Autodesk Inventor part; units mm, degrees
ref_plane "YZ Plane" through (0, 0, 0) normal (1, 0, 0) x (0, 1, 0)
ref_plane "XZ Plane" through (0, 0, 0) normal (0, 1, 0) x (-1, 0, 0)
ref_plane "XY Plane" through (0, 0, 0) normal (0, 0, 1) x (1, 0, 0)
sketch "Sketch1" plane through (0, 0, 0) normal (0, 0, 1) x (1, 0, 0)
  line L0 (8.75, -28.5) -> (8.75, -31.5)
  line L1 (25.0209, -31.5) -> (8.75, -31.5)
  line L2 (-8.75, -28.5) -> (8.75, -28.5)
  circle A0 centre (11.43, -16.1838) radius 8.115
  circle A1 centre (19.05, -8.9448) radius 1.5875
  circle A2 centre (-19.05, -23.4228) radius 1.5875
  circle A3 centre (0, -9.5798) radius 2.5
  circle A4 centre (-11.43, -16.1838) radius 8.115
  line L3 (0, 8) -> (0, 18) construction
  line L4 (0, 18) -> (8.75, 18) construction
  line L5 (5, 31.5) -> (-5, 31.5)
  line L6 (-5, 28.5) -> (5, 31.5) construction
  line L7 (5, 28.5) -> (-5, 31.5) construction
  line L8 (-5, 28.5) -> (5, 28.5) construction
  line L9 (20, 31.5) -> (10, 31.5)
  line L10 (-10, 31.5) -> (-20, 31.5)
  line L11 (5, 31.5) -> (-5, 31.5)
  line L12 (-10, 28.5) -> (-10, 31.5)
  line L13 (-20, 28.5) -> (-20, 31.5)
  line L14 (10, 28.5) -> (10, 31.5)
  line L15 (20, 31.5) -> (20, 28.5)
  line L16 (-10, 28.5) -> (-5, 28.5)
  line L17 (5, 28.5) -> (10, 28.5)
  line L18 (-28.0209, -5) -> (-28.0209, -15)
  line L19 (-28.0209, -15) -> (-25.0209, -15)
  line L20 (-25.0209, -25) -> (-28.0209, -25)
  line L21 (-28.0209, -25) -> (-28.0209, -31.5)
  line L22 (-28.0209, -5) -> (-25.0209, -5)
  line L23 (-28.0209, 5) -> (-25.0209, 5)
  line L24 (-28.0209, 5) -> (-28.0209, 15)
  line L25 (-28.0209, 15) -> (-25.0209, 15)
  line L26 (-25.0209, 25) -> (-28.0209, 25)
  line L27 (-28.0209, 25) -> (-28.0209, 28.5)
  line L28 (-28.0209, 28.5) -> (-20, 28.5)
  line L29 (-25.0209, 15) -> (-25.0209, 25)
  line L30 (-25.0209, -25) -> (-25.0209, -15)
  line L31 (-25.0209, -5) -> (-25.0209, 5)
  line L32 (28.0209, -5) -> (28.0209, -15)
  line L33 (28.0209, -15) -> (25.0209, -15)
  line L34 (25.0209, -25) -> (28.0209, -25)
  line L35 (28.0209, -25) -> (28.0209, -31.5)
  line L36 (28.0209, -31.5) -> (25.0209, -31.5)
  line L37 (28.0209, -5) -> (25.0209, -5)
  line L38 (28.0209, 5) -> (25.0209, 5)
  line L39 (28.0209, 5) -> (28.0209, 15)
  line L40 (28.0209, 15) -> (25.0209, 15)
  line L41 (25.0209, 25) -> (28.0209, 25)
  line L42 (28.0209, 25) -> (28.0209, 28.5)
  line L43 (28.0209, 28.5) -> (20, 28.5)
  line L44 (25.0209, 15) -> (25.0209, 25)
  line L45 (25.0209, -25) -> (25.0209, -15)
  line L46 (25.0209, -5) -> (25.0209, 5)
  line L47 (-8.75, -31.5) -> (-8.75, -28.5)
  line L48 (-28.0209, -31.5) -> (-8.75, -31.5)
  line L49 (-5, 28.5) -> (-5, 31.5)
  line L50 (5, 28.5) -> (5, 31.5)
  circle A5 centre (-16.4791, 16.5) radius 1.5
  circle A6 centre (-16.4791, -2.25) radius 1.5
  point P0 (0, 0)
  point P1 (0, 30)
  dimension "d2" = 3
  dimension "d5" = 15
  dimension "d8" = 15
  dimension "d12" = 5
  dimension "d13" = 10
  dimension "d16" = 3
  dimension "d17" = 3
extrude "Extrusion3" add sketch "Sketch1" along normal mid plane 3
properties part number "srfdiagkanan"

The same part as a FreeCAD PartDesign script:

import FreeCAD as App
import Part
import Sketcher

V = App.Vector
Q = App.Units.Quantity

doc = App.newDocument("Part")
body = doc.addObject("PartDesign::Body", "Body")

sketch1 = body.newObject("Sketcher::SketchObject", "Sketch")
sketch1.AttachmentSupport = (doc.getObject("XY_Plane"), [""])
sketch1.MapMode = "FlatFace"
sketch1.addGeometry(Part.LineSegment(V(-8.8, -28.5, 0), V(8.8, -28.5, 0)), False)
sketch1.addGeometry(Part.LineSegment(V(8.8, -28.5, 0), V(8.8, -31.5, 0)), False)
sketch1.addGeometry(Part.LineSegment(V(8.8, -31.5, 0), V(28, -31.5, 0)), False)
sketch1.addGeometry(Part.LineSegment(V(28, -31.5, 0), V(28, -25, 0)), False)
sketch1.addGeometry(Part.LineSegment(V(28, -25, 0), V(25, -25, 0)), False)
sketch1.addGeometry(Part.LineSegment(V(25, -25, 0), V(25, -15, 0)), False)
sketch1.addGeometry(Part.LineSegment(V(25, -15, 0), V(28, -15, 0)), False)
sketch1.addGeometry(Part.LineSegment(V(28, -15, 0), V(28, -5, 0)), False)
sketch1.addGeometry(Part.LineSegment(V(28, -5, 0), V(25, -5, 0)), False)
sketch1.addGeometry(Part.LineSegment(V(25, -5, 0), V(25, 5, 0)), False)
sketch1.addGeometry(Part.LineSegment(V(25, 5, 0), V(28, 5, 0)), False)
sketch1.addGeometry(Part.LineSegment(V(28, 5, 0), V(28, 15, 0)), False)
sketch1.addGeometry(Part.LineSegment(V(28, 15, 0), V(25, 15, 0)), False)
sketch1.addGeometry(Part.LineSegment(V(25, 15, 0), V(25, 25, 0)), False)
sketch1.addGeometry(Part.LineSegment(V(25, 25, 0), V(28, 25, 0)), False)
sketch1.addGeometry(Part.LineSegment(V(28, 25, 0), V(28, 28.5, 0)), False)
sketch1.addGeometry(Part.LineSegment(V(28, 28.5, 0), V(20, 28.5, 0)), False)
sketch1.addGeometry(Part.LineSegment(V(20, 28.5, 0), V(20, 31.5, 0)), False)
sketch1.addGeometry(Part.LineSegment(V(20, 31.5, 0), V(10, 31.5, 0)), False)
sketch1.addGeometry(Part.LineSegment(V(10, 31.5, 0), V(10, 28.5, 0)), False)
sketch1.addGeometry(Part.LineSegment(V(10, 28.5, 0), V(5, 28.5, 0)), False)
sketch1.addGeometry(Part.LineSegment(V(5, 28.5, 0), V(5, 31.5, 0)), False)
sketch1.addGeometry(Part.LineSegment(V(5, 31.5, 0), V(-5, 31.5, 0)), False)
sketch1.addGeometry(Part.LineSegment(V(-5, 31.5, 0), V(-5, 28.5, 0)), False)
sketch1.addGeometry(Part.LineSegment(V(-5, 28.5, 0), V(-10, 28.5, 0)), False)
sketch1.addGeometry(Part.LineSegment(V(-10, 28.5, 0), V(-10, 31.5, 0)), False)
sketch1.addGeometry(Part.LineSegment(V(-10, 31.5, 0), V(-20, 31.5, 0)), False)
sketch1.addGeometry(Part.LineSegment(V(-20, 31.5, 0), V(-20, 28.5, 0)), False)
sketch1.addGeometry(Part.LineSegment(V(-20, 28.5, 0), V(-28, 28.5, 0)), False)
sketch1.addGeometry(Part.LineSegment(V(-28, 28.5, 0), V(-28, 25, 0)), False)
sketch1.addGeometry(Part.LineSegment(V(-28, 25, 0), V(-25, 25, 0)), False)
sketch1.addGeometry(Part.LineSegment(V(-25, 25, 0), V(-25, 15, 0)), False)
sketch1.addGeometry(Part.LineSegment(V(-25, 15, 0), V(-28, 15, 0)), False)
sketch1.addGeometry(Part.LineSegment(V(-28, 15, 0), V(-28, 5, 0)), False)
sketch1.addGeometry(Part.LineSegment(V(-28, 5, 0), V(-25, 5, 0)), False)
sketch1.addGeometry(Part.LineSegment(V(-25, 5, 0), V(-25, -5, 0)), False)
sketch1.addGeometry(Part.LineSegment(V(-25, -5, 0), V(-28, -5, 0)), False)
sketch1.addGeometry(Part.LineSegment(V(-28, -5, 0), V(-28, -15, 0)), False)
sketch1.addGeometry(Part.LineSegment(V(-28, -15, 0), V(-25, -15, 0)), False)
sketch1.addGeometry(Part.LineSegment(V(-25, -15, 0), V(-25, -25, 0)), False)
sketch1.addGeometry(Part.LineSegment(V(-25, -25, 0), V(-28, -25, 0)), False)
sketch1.addGeometry(Part.LineSegment(V(-28, -25, 0), V(-28, -31.5, 0)), False)
sketch1.addGeometry(Part.LineSegment(V(-28, -31.5, 0), V(-8.8, -31.5, 0)), False)
sketch1.addGeometry(Part.LineSegment(V(-8.8, -31.5, 0), V(-8.8, -28.5, 0)), False)
sketch1.addGeometry(Part.Circle(V(-19.1, -23.4, 0), V(0, 0, 1), 1.6), False)
sketch1.addGeometry(Part.Circle(V(-11.4, -16.2, 0), V(0, 0, 1), 8.1), False)
sketch1.addGeometry(Part.Circle(V(-16.5, -2.2, 0), V(0, 0, 1), 1.5), False)
sketch1.addGeometry(Part.Circle(V(11.4, -16.2, 0), V(0, 0, 1), 8.1), False)
sketch1.addGeometry(Part.Circle(V(0, -9.6, 0), V(0, 0, 1), 2.5), False)
sketch1.addGeometry(Part.Circle(V(19.1, -8.9, 0), V(0, 0, 1), 1.6), False)
sketch1.addGeometry(Part.Circle(V(-16.5, 16.5, 0), V(0, 0, 1), 1.5), False)
sketch1.addConstraint(Sketcher.Constraint("Coincident", 0, 2, 1, 1))
sketch1.addConstraint(Sketcher.Constraint("Coincident", 1, 2, 2, 1))
sketch1.addConstraint(Sketcher.Constraint("Coincident", 2, 2, 3, 1))
sketch1.addConstraint(Sketcher.Constraint("Coincident", 3, 2, 4, 1))
sketch1.addConstraint(Sketcher.Constraint("Coincident", 4, 2, 5, 1))
sketch1.addConstraint(Sketcher.Constraint("Coincident", 5, 2, 6, 1))
sketch1.addConstraint(Sketcher.Constraint("Coincident", 6, 2, 7, 1))
sketch1.addConstraint(Sketcher.Constraint("Coincident", 7, 2, 8, 1))
sketch1.addConstraint(Sketcher.Constraint("Coincident", 8, 2, 9, 1))
sketch1.addConstraint(Sketcher.Constraint("Coincident", 9, 2, 10, 1))
sketch1.addConstraint(Sketcher.Constraint("Coincident", 10, 2, 11, 1))
sketch1.addConstraint(Sketcher.Constraint("Coincident", 11, 2, 12, 1))
sketch1.addConstraint(Sketcher.Constraint("Coincident", 12, 2, 13, 1))
sketch1.addConstraint(Sketcher.Constraint("Coincident", 13, 2, 14, 1))
sketch1.addConstraint(Sketcher.Constraint("Coincident", 14, 2, 15, 1))
sketch1.addConstraint(Sketcher.Constraint("Coincident", 15, 2, 16, 1))
sketch1.addConstraint(Sketcher.Constraint("Coincident", 16, 2, 17, 1))
sketch1.addConstraint(Sketcher.Constraint("Coincident", 17, 2, 18, 1))
sketch1.addConstraint(Sketcher.Constraint("Coincident", 18, 2, 19, 1))
sketch1.addConstraint(Sketcher.Constraint("Coincident", 19, 2, 20, 1))
sketch1.addConstraint(Sketcher.Constraint("Coincident", 20, 2, 21, 1))
sketch1.addConstraint(Sketcher.Constraint("Coincident", 21, 2, 22, 1))
sketch1.addConstraint(Sketcher.Constraint("Coincident", 22, 2, 23, 1))
sketch1.addConstraint(Sketcher.Constraint("Coincident", 23, 2, 24, 1))
sketch1.addConstraint(Sketcher.Constraint("Coincident", 24, 2, 25, 1))
sketch1.addConstraint(Sketcher.Constraint("Coincident", 25, 2, 26, 1))
sketch1.addConstraint(Sketcher.Constraint("Coincident", 26, 2, 27, 1))
sketch1.addConstraint(Sketcher.Constraint("Coincident", 27, 2, 28, 1))
sketch1.addConstraint(Sketcher.Constraint("Coincident", 28, 2, 29, 1))
sketch1.addConstraint(Sketcher.Constraint("Coincident", 29, 2, 30, 1))
sketch1.addConstraint(Sketcher.Constraint("Coincident", 30, 2, 31, 1))
sketch1.addConstraint(Sketcher.Constraint("Coincident", 31, 2, 32, 1))
sketch1.addConstraint(Sketcher.Constraint("Coincident", 32, 2, 33, 1))
sketch1.addConstraint(Sketcher.Constraint("Coincident", 33, 2, 34, 1))
sketch1.addConstraint(Sketcher.Constraint("Coincident", 34, 2, 35, 1))
sketch1.addConstraint(Sketcher.Constraint("Coincident", 35, 2, 36, 1))
sketch1.addConstraint(Sketcher.Constraint("Coincident", 36, 2, 37, 1))
sketch1.addConstraint(Sketcher.Constraint("Coincident", 37, 2, 38, 1))
sketch1.addConstraint(Sketcher.Constraint("Coincident", 38, 2, 39, 1))
sketch1.addConstraint(Sketcher.Constraint("Coincident", 39, 2, 40, 1))
sketch1.addConstraint(Sketcher.Constraint("Coincident", 40, 2, 41, 1))
sketch1.addConstraint(Sketcher.Constraint("Coincident", 41, 2, 42, 1))
sketch1.addConstraint(Sketcher.Constraint("Coincident", 42, 2, 43, 1))
sketch1.addConstraint(Sketcher.Constraint("Coincident", 43, 2, 0, 1))
sketch1.addConstraint(Sketcher.Constraint("Horizontal", 0))
sketch1.addConstraint(Sketcher.Constraint("Vertical", 1))
sketch1.addConstraint(Sketcher.Constraint("Horizontal", 2))
sketch1.addConstraint(Sketcher.Constraint("Vertical", 3))
sketch1.addConstraint(Sketcher.Constraint("Horizontal", 4))
sketch1.addConstraint(Sketcher.Constraint("Vertical", 5))
sketch1.addConstraint(Sketcher.Constraint("Horizontal", 6))
sketch1.addConstraint(Sketcher.Constraint("Vertical", 7))
sketch1.addConstraint(Sketcher.Constraint("Horizontal", 8))
sketch1.addConstraint(Sketcher.Constraint("Vertical", 9))
sketch1.addConstraint(Sketcher.Constraint("Horizontal", 10))
sketch1.addConstraint(Sketcher.Constraint("Vertical", 11))
sketch1.addConstraint(Sketcher.Constraint("Horizontal", 12))
sketch1.addConstraint(Sketcher.Constraint("Vertical", 13))
sketch1.addConstraint(Sketcher.Constraint("Horizontal", 14))
sketch1.addConstraint(Sketcher.Constraint("Vertical", 15))
sketch1.addConstraint(Sketcher.Constraint("Horizontal", 16))
sketch1.addConstraint(Sketcher.Constraint("Vertical", 17))
sketch1.addConstraint(Sketcher.Constraint("Horizontal", 18))
sketch1.addConstraint(Sketcher.Constraint("Vertical", 19))
sketch1.addConstraint(Sketcher.Constraint("Horizontal", 20))
sketch1.addConstraint(Sketcher.Constraint("Vertical", 21))
sketch1.addConstraint(Sketcher.Constraint("Horizontal", 22))
sketch1.addConstraint(Sketcher.Constraint("Vertical", 23))
sketch1.addConstraint(Sketcher.Constraint("Horizontal", 24))
sketch1.addConstraint(Sketcher.Constraint("Vertical", 25))
sketch1.addConstraint(Sketcher.Constraint("Horizontal", 26))
sketch1.addConstraint(Sketcher.Constraint("Vertical", 27))
sketch1.addConstraint(Sketcher.Constraint("Horizontal", 28))
sketch1.addConstraint(Sketcher.Constraint("Vertical", 29))
sketch1.addConstraint(Sketcher.Constraint("Horizontal", 30))
sketch1.addConstraint(Sketcher.Constraint("Vertical", 31))
sketch1.addConstraint(Sketcher.Constraint("Horizontal", 32))
sketch1.addConstraint(Sketcher.Constraint("Vertical", 33))
sketch1.addConstraint(Sketcher.Constraint("Horizontal", 34))
sketch1.addConstraint(Sketcher.Constraint("Vertical", 35))
sketch1.addConstraint(Sketcher.Constraint("Horizontal", 36))
sketch1.addConstraint(Sketcher.Constraint("Vertical", 37))
sketch1.addConstraint(Sketcher.Constraint("Horizontal", 38))
sketch1.addConstraint(Sketcher.Constraint("Vertical", 39))
sketch1.addConstraint(Sketcher.Constraint("Horizontal", 40))
sketch1.addConstraint(Sketcher.Constraint("Vertical", 41))
sketch1.addConstraint(Sketcher.Constraint("Horizontal", 42))
sketch1.addConstraint(Sketcher.Constraint("Vertical", 43))
sketch1.addConstraint(Sketcher.Constraint("Equal", 45, 47))
sketch1.addConstraint(Sketcher.Constraint("Equal", 44, 49))
sketch1.addConstraint(Sketcher.Constraint("Equal", 46, 50))
sketch1.addConstraint(Sketcher.Constraint("Symmetric", 3, 2, 29, 2, -1, 1))
sketch1.addConstraint(Sketcher.Constraint("Symmetric", 5, 2, 31, 2, -1, 1))
sketch1.addConstraint(Sketcher.Constraint("Symmetric", 7, 2, 33, 2, -1, 1))
sketch1.addConstraint(Sketcher.Constraint("Symmetric", 9, 2, 35, 2, -1, 1))
sketch1.addConstraint(Sketcher.Constraint("Symmetric", 11, 2, 37, 2, -1, 1))
sketch1.addConstraint(Sketcher.Constraint("Symmetric", 13, 2, 39, 2, -1, 1))
sketch1.addConstraint(Sketcher.Constraint("Symmetric", 45, 3, 47, 3, -2))
sketch1.addConstraint(Sketcher.Constraint("Symmetric", 20, 2, 23, 2, -2))
sketch1.addConstraint(Sketcher.Constraint("Symmetric", 18, 2, 25, 2, -2))
sketch1.addConstraint(Sketcher.Constraint("Symmetric", 16, 2, 27, 2, -2))
sketch1.addConstraint(Sketcher.Constraint("Symmetric", 14, 2, 29, 2, -2))
sketch1.addConstraint(Sketcher.Constraint("Symmetric", 12, 2, 31, 2, -2))
sketch1.addConstraint(Sketcher.Constraint("Symmetric", 10, 2, 33, 2, -2))
sketch1.addConstraint(Sketcher.Constraint("Symmetric", 2, 2, 41, 2, -2))
sketch1.addConstraint(Sketcher.Constraint("PointOnObject", 48, 3, -2))
sketch1.addConstraint(Sketcher.Constraint("Horizontal", 16, 2, 19, 2))
sketch1.addConstraint(Sketcher.Constraint("Horizontal", 18, 2, 21, 2))
sketch1.addConstraint(Sketcher.Constraint("Vertical", 46, 3, 50, 3))
sketch1.addConstraint(Sketcher.Constraint("Vertical", 3, 2, 6, 2))
sketch1.addConstraint(Sketcher.Constraint("Vertical", 5, 2, 8, 2))
sketch1.addConstraint(Sketcher.Constraint("Equal", 18, 22))
sketch1.addConstraint(Sketcher.Constraint("Equal", 2, 42))
sketch1.addConstraint(Sketcher.Constraint("Equal", 40, 1))
sketch1.addConstraint(Sketcher.Constraint("Equal", 26, 5))
sketch1.addConstraint(Sketcher.Constraint("Equal", 5, 7))
sketch1.addConstraint(Sketcher.Constraint("Equal", 7, 9))
sketch1.addConstraint(Sketcher.Constraint("Equal", 1, 17))
sketch1.addConstraint(Sketcher.Constraint("Diameter", 46, Q("3 mm")))
sketch1.addConstraint(Sketcher.Constraint("Diameter", 48, Q("5 mm")))
sketch1.addConstraint(Sketcher.Constraint("DistanceX", 4, 2, 4, 1, Q("3 mm")))
sketch1.addConstraint(Sketcher.Constraint("DistanceX", 18, 2, 18, 1, Q("10 mm")))
sketch1.addConstraint(Sketcher.Constraint("DistanceX", 20, 2, 20, 1, Q("5 mm")))
sketch1.addConstraint(Sketcher.Constraint("DistanceY", 50, 3, 22, 2, Q("15 mm")))
sketch1.addConstraint(Sketcher.Constraint("Diameter", 45, Q("16.23 mm")))
sketch1.addConstraint(Sketcher.Constraint("Diameter", 44, Q("3.175 mm")))
sketch1.addConstraint(Sketcher.Constraint("DistanceX", 0, 1, 0, 2, Q("17.5 mm")))
sketch1.addConstraint(Sketcher.Constraint("DistanceY", 3, 1, 3, 2, Q("6.5 mm")))
sketch1.addConstraint(Sketcher.Constraint("DistanceY", 15, 1, 15, 2, Q("3.5 mm")))
sketch1.addConstraint(Sketcher.Constraint("DistanceX", 44, 3, 49, 3, Q("38.1 mm")))
sketch1.addConstraint(Sketcher.Constraint("DistanceX", 0, 2, 49, 3, Q("10.3 mm")))
sketch1.addConstraint(Sketcher.Constraint("DistanceX", 2, 1, 2, 2, Q("19.271 mm")))
sketch1.addConstraint(Sketcher.Constraint("DistanceX", 45, 3, -1, 1, Q("11.43 mm")))
sketch1.addConstraint(Sketcher.Constraint("DistanceY", 46, 3, -1, 1, Q("2.25 mm")))
sketch1.addConstraint(Sketcher.Constraint("DistanceX", 46, 3, -1, 1, Q("16.479 mm")))
sketch1.addConstraint(Sketcher.Constraint("DistanceY", 44, 3, 45, 3, Q("7.239 mm")))
sketch1.addConstraint(Sketcher.Constraint("DistanceY", 45, 3, 48, 3, Q("6.604 mm")))
sketch1.addConstraint(Sketcher.Constraint("DistanceY", 47, 3, 49, 3, Q("7.239 mm")))
sketch1.addConstraint(Sketcher.Constraint("DistanceY", 44, 3, -1, 1, Q("23.4228 mm")))
pad1 = body.newObject("PartDesign::Pad", "Pad")
pad1.Profile = sketch1
pad1.Length = 3
pad1.Midplane = True

doc.recompute()
